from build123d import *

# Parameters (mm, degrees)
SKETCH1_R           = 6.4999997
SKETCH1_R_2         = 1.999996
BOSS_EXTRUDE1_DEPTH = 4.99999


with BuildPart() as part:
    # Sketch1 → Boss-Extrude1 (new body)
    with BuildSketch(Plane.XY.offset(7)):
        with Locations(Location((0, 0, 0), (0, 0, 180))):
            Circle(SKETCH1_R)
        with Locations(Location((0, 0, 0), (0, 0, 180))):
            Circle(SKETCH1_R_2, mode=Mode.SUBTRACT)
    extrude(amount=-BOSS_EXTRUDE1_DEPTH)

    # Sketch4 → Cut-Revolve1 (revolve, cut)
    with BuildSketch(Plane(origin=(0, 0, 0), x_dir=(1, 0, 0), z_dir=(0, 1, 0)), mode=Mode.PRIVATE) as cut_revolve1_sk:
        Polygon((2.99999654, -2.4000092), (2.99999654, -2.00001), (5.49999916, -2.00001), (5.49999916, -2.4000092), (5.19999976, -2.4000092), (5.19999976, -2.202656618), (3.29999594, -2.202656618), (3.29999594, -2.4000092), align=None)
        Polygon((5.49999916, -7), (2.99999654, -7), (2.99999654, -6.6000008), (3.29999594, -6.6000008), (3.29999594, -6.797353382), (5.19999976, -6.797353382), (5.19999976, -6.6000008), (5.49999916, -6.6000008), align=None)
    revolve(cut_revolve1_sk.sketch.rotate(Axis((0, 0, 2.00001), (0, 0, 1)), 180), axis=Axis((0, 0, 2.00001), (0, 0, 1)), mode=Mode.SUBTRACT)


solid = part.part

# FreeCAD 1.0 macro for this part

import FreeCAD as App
import Part
import Sketcher

V = App.Vector
Q = App.Units.Quantity


def add_polygon(sketch, points):
    """Adds a closed chain of lines whose ends are joined by coincident constraints."""
    first, n = sketch.GeometryCount, len(points)
    for a, b in zip(points, points[1:] + points[:1]):
        sketch.addGeometry(Part.LineSegment(App.Vector(*a, 0), App.Vector(*b, 0)), False)
    for i in range(n):
        sketch.addConstraint(Sketcher.Constraint("Coincident", first + i, 2, first + (i + 1) % n, 1))

doc = App.newDocument("Part")
body = doc.addObject("PartDesign::Body", "Body")

# Sketch on XY plane
sketch1 = doc.addObject("Sketcher::SketchObject", "Sketch")
body.addObject(sketch1)
sketch1.AttachmentSupport = (doc.XY_Plane, [""])
sketch1.MapMode = "FlatFace"
sketch1.AttachmentOffset = App.Placement(V(0, 0, 7), App.Rotation())
sketch1.addGeometry([
    Part.Circle(V(0, 0, 0), V(0, 0, 1), 6.5),
    Part.Circle(V(0, 0, 0), V(0, 0, 1), 2),
], False)
sketch1.addConstraint([
    Sketcher.Constraint("Coincident", 0, 3, -1, 1),
    Sketcher.Constraint("Coincident", 1, 3, -1, 1),
    Sketcher.Constraint("Diameter", 0, Q("12.999999 mm")),
    Sketcher.Constraint("Diameter", 1, Q("3.999992 mm")),
])
pad1 = doc.addObject("PartDesign::Pad", "Pad")
body.addObject(pad1)
pad1.Profile = sketch1
pad1.Length = 4.99999
pad1.Reversed = True

# Sketch on XZ plane
sketch2 = doc.addObject("Sketcher::SketchObject", "Sketch001")
body.addObject(sketch2)
sketch2.AttachmentSupport = (doc.XZ_Plane, [""])
sketch2.MapMode = "FlatFace"
add_polygon(sketch2, [(3, 2), (3, 2.4), (3.3, 2.4), (3.3, 2.2), (5.2, 2.2), (5.2, 2.4), (5.5, 2.4), (5.5, 2)])  # lines 0-7
add_polygon(sketch2, [(3, 7), (5.5, 7), (5.5, 6.6), (5.2, 6.6), (5.2, 6.8), (3.3, 6.8), (3.3, 6.6), (3, 6.6)])  # lines 8-15
sketch2.addConstraint([
    Sketcher.Constraint("Vertical", 0),
    Sketcher.Constraint("Horizontal", 1),
    Sketcher.Constraint("Vertical", 2),
    Sketcher.Constraint("Horizontal", 3),
    Sketcher.Constraint("Vertical", 4),
    Sketcher.Constraint("Horizontal", 5),
    Sketcher.Constraint("Vertical", 6),
    Sketcher.Constraint("Horizontal", 7),
    Sketcher.Constraint("Horizontal", 8),
    Sketcher.Constraint("Vertical", 9),
    Sketcher.Constraint("Horizontal", 10),
    Sketcher.Constraint("Vertical", 11),
    Sketcher.Constraint("Horizontal", 12),
    Sketcher.Constraint("Vertical", 13),
    Sketcher.Constraint("Horizontal", 14),
    Sketcher.Constraint("Vertical", 15),
    Sketcher.Constraint("Horizontal", 1, 2, 4, 2),
    Sketcher.Constraint("Horizontal", 10, 2, 13, 2),
    Sketcher.Constraint("Vertical", 6, 2, 8, 2),
    Sketcher.Constraint("Vertical", 4, 2, 10, 2),
    Sketcher.Constraint("Vertical", 2, 2, 12, 2),
    Sketcher.Constraint("Vertical", 7, 2, 14, 2),
    Sketcher.Constraint("Equal", 1, 5),
    Sketcher.Constraint("Equal", 6, 9),
    Sketcher.Constraint("Equal", 4, 11),
    Sketcher.Constraint("DistanceX", 1, 1, 1, 2, Q("0.299999 mm")),
    Sketcher.Constraint("DistanceY", 0, 1, 0, 2, Q("0.399999 mm")),
    Sketcher.Constraint("DistanceY", -1, 1, 8, 2, Q("7 mm")),
    Sketcher.Constraint("DistanceX", -1, 1, 3, 2, Q("5.2 mm")),
    Sketcher.Constraint("DistanceX", 3, 1, 3, 2, Q("1.900004 mm")),
    Sketcher.Constraint("DistanceY", 2, 2, 2, 1, Q("0.197353 mm")),
    Sketcher.Constraint("DistanceY", -1, 1, 0, 2, Q("2.400009 mm")),
])
groove = doc.addObject("PartDesign::Groove", "Groove")
body.addObject(groove)
groove.Profile = sketch2
groove.ReferenceAxis = (sketch2, ["V_Axis"])
groove.Angle = 360

doc.recompute()
